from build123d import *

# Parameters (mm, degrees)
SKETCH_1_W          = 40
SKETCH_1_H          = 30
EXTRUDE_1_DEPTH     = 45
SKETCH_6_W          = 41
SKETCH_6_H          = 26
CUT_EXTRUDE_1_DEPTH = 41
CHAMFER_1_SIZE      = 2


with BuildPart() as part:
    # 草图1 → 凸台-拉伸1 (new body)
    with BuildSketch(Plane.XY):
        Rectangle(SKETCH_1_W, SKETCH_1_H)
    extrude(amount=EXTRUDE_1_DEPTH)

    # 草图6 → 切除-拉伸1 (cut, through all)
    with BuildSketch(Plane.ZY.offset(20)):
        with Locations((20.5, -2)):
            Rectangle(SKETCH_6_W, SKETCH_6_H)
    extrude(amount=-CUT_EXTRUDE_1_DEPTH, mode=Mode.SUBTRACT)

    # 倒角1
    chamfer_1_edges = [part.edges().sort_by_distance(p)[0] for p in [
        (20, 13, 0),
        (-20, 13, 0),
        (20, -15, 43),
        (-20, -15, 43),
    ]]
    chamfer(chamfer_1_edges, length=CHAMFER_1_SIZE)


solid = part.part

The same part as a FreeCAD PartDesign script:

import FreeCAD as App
import Part
import Sketcher
Q = App.Units.Quantity


def edges_at(feature, points):
    """Names of the edges that pass closest to the given points."""
    edges = feature.Shape.Edges
    near = lambda p: min(range(len(edges)), key=lambda i: edges[i].distToShape(Part.Vertex(*p))[0])
    return sorted({f"Edge{near(p) + 1}" for p in points})


def add_polygon(sketch, points):
    """Adds a closed chain of lines whose ends are joined by coincident constraints."""
    first, n = sketch.GeometryCount, len(points)
    for a, b in zip(points, points[1:] + points[:1]):
        sketch.addGeometry(Part.LineSegment(App.Vector(*a, 0), App.Vector(*b, 0)), False)
    for i in range(n):
        sketch.addConstraint(Sketcher.Constraint("Coincident", first + i, 2, first + (i + 1) % n, 1))

doc = App.newDocument("Part")
body = doc.addObject("PartDesign::Body", "Body")

# Sketch on XY plane
sketch1 = doc.addObject("Sketcher::SketchObject", "Sketch")
body.addObject(sketch1)
sketch1.AttachmentSupport = (doc.XY_Plane, [""])
sketch1.MapMode = "FlatFace"
add_polygon(sketch1, [(-20, 15), (-20, -15), (20, -15), (20, 15)])  # lines 0-3
sketch1.addConstraint([
    Sketcher.Constraint("Vertical", 0),
    Sketcher.Constraint("Horizontal", 1),
    Sketcher.Constraint("Vertical", 2),
    Sketcher.Constraint("Horizontal", 3),
    Sketcher.Constraint("Symmetric", 0, 2, 2, 2, -1, 1),
    Sketcher.Constraint("DistanceX", 1, 1, 1, 2, Q("40 mm")),
    Sketcher.Constraint("DistanceY", 0, 2, 0, 1, Q("30 mm")),
])
pad1 = doc.addObject("PartDesign::Pad", "Pad")
body.addObject(pad1)
pad1.Profile = sketch1
pad1.Length = 45

# Sketch on YZ plane
sketch2 = doc.addObject("Sketcher::SketchObject", "Sketch001")
body.addObject(sketch2)
sketch2.AttachmentSupport = (doc.YZ_Plane, [""])
sketch2.MapMode = "FlatFace"
sketch2.AttachmentOffset = App.Placement(App.Vector(0, 0, -20), App.Rotation())
add_polygon(sketch2, [(11, 0), (-15, 0), (-15, 41), (11, 41)])  # lines 0-3
sketch2.addConstraint([
    Sketcher.Constraint("Horizontal", 0),
    Sketcher.Constraint("Vertical", 1),
    Sketcher.Constraint("Horizontal", 2),
    Sketcher.Constraint("Vertical", 3),
    Sketcher.Constraint("PointOnObject", 0, 2, -1),
    Sketcher.Constraint("DistanceX", 0, 2, 0, 1, Q("26 mm")),
    Sketcher.Constraint("DistanceY", 1, 1, 1, 2, Q("41 mm")),
    Sketcher.Constraint("DistanceX", 0, 2, -1, 1, Q("15 mm")),
])
pocket1 = doc.addObject("PartDesign::Pocket", "Pocket")
body.addObject(pocket1)
pocket1.Profile = sketch2
pocket1.Type = "ThroughAll"
pocket1.Reversed = True
doc.recompute()

chamfer = doc.addObject("PartDesign::Chamfer", "Chamfer")
body.addObject(chamfer)
chamfer.Base = (pocket1, edges_at(pocket1, [
    (20, 13, 0),
    (-20, 13, 0),
    (20, -15, 43),
    (-20, -15, 43),
]))
chamfer.Size = 2

doc.recompute()
